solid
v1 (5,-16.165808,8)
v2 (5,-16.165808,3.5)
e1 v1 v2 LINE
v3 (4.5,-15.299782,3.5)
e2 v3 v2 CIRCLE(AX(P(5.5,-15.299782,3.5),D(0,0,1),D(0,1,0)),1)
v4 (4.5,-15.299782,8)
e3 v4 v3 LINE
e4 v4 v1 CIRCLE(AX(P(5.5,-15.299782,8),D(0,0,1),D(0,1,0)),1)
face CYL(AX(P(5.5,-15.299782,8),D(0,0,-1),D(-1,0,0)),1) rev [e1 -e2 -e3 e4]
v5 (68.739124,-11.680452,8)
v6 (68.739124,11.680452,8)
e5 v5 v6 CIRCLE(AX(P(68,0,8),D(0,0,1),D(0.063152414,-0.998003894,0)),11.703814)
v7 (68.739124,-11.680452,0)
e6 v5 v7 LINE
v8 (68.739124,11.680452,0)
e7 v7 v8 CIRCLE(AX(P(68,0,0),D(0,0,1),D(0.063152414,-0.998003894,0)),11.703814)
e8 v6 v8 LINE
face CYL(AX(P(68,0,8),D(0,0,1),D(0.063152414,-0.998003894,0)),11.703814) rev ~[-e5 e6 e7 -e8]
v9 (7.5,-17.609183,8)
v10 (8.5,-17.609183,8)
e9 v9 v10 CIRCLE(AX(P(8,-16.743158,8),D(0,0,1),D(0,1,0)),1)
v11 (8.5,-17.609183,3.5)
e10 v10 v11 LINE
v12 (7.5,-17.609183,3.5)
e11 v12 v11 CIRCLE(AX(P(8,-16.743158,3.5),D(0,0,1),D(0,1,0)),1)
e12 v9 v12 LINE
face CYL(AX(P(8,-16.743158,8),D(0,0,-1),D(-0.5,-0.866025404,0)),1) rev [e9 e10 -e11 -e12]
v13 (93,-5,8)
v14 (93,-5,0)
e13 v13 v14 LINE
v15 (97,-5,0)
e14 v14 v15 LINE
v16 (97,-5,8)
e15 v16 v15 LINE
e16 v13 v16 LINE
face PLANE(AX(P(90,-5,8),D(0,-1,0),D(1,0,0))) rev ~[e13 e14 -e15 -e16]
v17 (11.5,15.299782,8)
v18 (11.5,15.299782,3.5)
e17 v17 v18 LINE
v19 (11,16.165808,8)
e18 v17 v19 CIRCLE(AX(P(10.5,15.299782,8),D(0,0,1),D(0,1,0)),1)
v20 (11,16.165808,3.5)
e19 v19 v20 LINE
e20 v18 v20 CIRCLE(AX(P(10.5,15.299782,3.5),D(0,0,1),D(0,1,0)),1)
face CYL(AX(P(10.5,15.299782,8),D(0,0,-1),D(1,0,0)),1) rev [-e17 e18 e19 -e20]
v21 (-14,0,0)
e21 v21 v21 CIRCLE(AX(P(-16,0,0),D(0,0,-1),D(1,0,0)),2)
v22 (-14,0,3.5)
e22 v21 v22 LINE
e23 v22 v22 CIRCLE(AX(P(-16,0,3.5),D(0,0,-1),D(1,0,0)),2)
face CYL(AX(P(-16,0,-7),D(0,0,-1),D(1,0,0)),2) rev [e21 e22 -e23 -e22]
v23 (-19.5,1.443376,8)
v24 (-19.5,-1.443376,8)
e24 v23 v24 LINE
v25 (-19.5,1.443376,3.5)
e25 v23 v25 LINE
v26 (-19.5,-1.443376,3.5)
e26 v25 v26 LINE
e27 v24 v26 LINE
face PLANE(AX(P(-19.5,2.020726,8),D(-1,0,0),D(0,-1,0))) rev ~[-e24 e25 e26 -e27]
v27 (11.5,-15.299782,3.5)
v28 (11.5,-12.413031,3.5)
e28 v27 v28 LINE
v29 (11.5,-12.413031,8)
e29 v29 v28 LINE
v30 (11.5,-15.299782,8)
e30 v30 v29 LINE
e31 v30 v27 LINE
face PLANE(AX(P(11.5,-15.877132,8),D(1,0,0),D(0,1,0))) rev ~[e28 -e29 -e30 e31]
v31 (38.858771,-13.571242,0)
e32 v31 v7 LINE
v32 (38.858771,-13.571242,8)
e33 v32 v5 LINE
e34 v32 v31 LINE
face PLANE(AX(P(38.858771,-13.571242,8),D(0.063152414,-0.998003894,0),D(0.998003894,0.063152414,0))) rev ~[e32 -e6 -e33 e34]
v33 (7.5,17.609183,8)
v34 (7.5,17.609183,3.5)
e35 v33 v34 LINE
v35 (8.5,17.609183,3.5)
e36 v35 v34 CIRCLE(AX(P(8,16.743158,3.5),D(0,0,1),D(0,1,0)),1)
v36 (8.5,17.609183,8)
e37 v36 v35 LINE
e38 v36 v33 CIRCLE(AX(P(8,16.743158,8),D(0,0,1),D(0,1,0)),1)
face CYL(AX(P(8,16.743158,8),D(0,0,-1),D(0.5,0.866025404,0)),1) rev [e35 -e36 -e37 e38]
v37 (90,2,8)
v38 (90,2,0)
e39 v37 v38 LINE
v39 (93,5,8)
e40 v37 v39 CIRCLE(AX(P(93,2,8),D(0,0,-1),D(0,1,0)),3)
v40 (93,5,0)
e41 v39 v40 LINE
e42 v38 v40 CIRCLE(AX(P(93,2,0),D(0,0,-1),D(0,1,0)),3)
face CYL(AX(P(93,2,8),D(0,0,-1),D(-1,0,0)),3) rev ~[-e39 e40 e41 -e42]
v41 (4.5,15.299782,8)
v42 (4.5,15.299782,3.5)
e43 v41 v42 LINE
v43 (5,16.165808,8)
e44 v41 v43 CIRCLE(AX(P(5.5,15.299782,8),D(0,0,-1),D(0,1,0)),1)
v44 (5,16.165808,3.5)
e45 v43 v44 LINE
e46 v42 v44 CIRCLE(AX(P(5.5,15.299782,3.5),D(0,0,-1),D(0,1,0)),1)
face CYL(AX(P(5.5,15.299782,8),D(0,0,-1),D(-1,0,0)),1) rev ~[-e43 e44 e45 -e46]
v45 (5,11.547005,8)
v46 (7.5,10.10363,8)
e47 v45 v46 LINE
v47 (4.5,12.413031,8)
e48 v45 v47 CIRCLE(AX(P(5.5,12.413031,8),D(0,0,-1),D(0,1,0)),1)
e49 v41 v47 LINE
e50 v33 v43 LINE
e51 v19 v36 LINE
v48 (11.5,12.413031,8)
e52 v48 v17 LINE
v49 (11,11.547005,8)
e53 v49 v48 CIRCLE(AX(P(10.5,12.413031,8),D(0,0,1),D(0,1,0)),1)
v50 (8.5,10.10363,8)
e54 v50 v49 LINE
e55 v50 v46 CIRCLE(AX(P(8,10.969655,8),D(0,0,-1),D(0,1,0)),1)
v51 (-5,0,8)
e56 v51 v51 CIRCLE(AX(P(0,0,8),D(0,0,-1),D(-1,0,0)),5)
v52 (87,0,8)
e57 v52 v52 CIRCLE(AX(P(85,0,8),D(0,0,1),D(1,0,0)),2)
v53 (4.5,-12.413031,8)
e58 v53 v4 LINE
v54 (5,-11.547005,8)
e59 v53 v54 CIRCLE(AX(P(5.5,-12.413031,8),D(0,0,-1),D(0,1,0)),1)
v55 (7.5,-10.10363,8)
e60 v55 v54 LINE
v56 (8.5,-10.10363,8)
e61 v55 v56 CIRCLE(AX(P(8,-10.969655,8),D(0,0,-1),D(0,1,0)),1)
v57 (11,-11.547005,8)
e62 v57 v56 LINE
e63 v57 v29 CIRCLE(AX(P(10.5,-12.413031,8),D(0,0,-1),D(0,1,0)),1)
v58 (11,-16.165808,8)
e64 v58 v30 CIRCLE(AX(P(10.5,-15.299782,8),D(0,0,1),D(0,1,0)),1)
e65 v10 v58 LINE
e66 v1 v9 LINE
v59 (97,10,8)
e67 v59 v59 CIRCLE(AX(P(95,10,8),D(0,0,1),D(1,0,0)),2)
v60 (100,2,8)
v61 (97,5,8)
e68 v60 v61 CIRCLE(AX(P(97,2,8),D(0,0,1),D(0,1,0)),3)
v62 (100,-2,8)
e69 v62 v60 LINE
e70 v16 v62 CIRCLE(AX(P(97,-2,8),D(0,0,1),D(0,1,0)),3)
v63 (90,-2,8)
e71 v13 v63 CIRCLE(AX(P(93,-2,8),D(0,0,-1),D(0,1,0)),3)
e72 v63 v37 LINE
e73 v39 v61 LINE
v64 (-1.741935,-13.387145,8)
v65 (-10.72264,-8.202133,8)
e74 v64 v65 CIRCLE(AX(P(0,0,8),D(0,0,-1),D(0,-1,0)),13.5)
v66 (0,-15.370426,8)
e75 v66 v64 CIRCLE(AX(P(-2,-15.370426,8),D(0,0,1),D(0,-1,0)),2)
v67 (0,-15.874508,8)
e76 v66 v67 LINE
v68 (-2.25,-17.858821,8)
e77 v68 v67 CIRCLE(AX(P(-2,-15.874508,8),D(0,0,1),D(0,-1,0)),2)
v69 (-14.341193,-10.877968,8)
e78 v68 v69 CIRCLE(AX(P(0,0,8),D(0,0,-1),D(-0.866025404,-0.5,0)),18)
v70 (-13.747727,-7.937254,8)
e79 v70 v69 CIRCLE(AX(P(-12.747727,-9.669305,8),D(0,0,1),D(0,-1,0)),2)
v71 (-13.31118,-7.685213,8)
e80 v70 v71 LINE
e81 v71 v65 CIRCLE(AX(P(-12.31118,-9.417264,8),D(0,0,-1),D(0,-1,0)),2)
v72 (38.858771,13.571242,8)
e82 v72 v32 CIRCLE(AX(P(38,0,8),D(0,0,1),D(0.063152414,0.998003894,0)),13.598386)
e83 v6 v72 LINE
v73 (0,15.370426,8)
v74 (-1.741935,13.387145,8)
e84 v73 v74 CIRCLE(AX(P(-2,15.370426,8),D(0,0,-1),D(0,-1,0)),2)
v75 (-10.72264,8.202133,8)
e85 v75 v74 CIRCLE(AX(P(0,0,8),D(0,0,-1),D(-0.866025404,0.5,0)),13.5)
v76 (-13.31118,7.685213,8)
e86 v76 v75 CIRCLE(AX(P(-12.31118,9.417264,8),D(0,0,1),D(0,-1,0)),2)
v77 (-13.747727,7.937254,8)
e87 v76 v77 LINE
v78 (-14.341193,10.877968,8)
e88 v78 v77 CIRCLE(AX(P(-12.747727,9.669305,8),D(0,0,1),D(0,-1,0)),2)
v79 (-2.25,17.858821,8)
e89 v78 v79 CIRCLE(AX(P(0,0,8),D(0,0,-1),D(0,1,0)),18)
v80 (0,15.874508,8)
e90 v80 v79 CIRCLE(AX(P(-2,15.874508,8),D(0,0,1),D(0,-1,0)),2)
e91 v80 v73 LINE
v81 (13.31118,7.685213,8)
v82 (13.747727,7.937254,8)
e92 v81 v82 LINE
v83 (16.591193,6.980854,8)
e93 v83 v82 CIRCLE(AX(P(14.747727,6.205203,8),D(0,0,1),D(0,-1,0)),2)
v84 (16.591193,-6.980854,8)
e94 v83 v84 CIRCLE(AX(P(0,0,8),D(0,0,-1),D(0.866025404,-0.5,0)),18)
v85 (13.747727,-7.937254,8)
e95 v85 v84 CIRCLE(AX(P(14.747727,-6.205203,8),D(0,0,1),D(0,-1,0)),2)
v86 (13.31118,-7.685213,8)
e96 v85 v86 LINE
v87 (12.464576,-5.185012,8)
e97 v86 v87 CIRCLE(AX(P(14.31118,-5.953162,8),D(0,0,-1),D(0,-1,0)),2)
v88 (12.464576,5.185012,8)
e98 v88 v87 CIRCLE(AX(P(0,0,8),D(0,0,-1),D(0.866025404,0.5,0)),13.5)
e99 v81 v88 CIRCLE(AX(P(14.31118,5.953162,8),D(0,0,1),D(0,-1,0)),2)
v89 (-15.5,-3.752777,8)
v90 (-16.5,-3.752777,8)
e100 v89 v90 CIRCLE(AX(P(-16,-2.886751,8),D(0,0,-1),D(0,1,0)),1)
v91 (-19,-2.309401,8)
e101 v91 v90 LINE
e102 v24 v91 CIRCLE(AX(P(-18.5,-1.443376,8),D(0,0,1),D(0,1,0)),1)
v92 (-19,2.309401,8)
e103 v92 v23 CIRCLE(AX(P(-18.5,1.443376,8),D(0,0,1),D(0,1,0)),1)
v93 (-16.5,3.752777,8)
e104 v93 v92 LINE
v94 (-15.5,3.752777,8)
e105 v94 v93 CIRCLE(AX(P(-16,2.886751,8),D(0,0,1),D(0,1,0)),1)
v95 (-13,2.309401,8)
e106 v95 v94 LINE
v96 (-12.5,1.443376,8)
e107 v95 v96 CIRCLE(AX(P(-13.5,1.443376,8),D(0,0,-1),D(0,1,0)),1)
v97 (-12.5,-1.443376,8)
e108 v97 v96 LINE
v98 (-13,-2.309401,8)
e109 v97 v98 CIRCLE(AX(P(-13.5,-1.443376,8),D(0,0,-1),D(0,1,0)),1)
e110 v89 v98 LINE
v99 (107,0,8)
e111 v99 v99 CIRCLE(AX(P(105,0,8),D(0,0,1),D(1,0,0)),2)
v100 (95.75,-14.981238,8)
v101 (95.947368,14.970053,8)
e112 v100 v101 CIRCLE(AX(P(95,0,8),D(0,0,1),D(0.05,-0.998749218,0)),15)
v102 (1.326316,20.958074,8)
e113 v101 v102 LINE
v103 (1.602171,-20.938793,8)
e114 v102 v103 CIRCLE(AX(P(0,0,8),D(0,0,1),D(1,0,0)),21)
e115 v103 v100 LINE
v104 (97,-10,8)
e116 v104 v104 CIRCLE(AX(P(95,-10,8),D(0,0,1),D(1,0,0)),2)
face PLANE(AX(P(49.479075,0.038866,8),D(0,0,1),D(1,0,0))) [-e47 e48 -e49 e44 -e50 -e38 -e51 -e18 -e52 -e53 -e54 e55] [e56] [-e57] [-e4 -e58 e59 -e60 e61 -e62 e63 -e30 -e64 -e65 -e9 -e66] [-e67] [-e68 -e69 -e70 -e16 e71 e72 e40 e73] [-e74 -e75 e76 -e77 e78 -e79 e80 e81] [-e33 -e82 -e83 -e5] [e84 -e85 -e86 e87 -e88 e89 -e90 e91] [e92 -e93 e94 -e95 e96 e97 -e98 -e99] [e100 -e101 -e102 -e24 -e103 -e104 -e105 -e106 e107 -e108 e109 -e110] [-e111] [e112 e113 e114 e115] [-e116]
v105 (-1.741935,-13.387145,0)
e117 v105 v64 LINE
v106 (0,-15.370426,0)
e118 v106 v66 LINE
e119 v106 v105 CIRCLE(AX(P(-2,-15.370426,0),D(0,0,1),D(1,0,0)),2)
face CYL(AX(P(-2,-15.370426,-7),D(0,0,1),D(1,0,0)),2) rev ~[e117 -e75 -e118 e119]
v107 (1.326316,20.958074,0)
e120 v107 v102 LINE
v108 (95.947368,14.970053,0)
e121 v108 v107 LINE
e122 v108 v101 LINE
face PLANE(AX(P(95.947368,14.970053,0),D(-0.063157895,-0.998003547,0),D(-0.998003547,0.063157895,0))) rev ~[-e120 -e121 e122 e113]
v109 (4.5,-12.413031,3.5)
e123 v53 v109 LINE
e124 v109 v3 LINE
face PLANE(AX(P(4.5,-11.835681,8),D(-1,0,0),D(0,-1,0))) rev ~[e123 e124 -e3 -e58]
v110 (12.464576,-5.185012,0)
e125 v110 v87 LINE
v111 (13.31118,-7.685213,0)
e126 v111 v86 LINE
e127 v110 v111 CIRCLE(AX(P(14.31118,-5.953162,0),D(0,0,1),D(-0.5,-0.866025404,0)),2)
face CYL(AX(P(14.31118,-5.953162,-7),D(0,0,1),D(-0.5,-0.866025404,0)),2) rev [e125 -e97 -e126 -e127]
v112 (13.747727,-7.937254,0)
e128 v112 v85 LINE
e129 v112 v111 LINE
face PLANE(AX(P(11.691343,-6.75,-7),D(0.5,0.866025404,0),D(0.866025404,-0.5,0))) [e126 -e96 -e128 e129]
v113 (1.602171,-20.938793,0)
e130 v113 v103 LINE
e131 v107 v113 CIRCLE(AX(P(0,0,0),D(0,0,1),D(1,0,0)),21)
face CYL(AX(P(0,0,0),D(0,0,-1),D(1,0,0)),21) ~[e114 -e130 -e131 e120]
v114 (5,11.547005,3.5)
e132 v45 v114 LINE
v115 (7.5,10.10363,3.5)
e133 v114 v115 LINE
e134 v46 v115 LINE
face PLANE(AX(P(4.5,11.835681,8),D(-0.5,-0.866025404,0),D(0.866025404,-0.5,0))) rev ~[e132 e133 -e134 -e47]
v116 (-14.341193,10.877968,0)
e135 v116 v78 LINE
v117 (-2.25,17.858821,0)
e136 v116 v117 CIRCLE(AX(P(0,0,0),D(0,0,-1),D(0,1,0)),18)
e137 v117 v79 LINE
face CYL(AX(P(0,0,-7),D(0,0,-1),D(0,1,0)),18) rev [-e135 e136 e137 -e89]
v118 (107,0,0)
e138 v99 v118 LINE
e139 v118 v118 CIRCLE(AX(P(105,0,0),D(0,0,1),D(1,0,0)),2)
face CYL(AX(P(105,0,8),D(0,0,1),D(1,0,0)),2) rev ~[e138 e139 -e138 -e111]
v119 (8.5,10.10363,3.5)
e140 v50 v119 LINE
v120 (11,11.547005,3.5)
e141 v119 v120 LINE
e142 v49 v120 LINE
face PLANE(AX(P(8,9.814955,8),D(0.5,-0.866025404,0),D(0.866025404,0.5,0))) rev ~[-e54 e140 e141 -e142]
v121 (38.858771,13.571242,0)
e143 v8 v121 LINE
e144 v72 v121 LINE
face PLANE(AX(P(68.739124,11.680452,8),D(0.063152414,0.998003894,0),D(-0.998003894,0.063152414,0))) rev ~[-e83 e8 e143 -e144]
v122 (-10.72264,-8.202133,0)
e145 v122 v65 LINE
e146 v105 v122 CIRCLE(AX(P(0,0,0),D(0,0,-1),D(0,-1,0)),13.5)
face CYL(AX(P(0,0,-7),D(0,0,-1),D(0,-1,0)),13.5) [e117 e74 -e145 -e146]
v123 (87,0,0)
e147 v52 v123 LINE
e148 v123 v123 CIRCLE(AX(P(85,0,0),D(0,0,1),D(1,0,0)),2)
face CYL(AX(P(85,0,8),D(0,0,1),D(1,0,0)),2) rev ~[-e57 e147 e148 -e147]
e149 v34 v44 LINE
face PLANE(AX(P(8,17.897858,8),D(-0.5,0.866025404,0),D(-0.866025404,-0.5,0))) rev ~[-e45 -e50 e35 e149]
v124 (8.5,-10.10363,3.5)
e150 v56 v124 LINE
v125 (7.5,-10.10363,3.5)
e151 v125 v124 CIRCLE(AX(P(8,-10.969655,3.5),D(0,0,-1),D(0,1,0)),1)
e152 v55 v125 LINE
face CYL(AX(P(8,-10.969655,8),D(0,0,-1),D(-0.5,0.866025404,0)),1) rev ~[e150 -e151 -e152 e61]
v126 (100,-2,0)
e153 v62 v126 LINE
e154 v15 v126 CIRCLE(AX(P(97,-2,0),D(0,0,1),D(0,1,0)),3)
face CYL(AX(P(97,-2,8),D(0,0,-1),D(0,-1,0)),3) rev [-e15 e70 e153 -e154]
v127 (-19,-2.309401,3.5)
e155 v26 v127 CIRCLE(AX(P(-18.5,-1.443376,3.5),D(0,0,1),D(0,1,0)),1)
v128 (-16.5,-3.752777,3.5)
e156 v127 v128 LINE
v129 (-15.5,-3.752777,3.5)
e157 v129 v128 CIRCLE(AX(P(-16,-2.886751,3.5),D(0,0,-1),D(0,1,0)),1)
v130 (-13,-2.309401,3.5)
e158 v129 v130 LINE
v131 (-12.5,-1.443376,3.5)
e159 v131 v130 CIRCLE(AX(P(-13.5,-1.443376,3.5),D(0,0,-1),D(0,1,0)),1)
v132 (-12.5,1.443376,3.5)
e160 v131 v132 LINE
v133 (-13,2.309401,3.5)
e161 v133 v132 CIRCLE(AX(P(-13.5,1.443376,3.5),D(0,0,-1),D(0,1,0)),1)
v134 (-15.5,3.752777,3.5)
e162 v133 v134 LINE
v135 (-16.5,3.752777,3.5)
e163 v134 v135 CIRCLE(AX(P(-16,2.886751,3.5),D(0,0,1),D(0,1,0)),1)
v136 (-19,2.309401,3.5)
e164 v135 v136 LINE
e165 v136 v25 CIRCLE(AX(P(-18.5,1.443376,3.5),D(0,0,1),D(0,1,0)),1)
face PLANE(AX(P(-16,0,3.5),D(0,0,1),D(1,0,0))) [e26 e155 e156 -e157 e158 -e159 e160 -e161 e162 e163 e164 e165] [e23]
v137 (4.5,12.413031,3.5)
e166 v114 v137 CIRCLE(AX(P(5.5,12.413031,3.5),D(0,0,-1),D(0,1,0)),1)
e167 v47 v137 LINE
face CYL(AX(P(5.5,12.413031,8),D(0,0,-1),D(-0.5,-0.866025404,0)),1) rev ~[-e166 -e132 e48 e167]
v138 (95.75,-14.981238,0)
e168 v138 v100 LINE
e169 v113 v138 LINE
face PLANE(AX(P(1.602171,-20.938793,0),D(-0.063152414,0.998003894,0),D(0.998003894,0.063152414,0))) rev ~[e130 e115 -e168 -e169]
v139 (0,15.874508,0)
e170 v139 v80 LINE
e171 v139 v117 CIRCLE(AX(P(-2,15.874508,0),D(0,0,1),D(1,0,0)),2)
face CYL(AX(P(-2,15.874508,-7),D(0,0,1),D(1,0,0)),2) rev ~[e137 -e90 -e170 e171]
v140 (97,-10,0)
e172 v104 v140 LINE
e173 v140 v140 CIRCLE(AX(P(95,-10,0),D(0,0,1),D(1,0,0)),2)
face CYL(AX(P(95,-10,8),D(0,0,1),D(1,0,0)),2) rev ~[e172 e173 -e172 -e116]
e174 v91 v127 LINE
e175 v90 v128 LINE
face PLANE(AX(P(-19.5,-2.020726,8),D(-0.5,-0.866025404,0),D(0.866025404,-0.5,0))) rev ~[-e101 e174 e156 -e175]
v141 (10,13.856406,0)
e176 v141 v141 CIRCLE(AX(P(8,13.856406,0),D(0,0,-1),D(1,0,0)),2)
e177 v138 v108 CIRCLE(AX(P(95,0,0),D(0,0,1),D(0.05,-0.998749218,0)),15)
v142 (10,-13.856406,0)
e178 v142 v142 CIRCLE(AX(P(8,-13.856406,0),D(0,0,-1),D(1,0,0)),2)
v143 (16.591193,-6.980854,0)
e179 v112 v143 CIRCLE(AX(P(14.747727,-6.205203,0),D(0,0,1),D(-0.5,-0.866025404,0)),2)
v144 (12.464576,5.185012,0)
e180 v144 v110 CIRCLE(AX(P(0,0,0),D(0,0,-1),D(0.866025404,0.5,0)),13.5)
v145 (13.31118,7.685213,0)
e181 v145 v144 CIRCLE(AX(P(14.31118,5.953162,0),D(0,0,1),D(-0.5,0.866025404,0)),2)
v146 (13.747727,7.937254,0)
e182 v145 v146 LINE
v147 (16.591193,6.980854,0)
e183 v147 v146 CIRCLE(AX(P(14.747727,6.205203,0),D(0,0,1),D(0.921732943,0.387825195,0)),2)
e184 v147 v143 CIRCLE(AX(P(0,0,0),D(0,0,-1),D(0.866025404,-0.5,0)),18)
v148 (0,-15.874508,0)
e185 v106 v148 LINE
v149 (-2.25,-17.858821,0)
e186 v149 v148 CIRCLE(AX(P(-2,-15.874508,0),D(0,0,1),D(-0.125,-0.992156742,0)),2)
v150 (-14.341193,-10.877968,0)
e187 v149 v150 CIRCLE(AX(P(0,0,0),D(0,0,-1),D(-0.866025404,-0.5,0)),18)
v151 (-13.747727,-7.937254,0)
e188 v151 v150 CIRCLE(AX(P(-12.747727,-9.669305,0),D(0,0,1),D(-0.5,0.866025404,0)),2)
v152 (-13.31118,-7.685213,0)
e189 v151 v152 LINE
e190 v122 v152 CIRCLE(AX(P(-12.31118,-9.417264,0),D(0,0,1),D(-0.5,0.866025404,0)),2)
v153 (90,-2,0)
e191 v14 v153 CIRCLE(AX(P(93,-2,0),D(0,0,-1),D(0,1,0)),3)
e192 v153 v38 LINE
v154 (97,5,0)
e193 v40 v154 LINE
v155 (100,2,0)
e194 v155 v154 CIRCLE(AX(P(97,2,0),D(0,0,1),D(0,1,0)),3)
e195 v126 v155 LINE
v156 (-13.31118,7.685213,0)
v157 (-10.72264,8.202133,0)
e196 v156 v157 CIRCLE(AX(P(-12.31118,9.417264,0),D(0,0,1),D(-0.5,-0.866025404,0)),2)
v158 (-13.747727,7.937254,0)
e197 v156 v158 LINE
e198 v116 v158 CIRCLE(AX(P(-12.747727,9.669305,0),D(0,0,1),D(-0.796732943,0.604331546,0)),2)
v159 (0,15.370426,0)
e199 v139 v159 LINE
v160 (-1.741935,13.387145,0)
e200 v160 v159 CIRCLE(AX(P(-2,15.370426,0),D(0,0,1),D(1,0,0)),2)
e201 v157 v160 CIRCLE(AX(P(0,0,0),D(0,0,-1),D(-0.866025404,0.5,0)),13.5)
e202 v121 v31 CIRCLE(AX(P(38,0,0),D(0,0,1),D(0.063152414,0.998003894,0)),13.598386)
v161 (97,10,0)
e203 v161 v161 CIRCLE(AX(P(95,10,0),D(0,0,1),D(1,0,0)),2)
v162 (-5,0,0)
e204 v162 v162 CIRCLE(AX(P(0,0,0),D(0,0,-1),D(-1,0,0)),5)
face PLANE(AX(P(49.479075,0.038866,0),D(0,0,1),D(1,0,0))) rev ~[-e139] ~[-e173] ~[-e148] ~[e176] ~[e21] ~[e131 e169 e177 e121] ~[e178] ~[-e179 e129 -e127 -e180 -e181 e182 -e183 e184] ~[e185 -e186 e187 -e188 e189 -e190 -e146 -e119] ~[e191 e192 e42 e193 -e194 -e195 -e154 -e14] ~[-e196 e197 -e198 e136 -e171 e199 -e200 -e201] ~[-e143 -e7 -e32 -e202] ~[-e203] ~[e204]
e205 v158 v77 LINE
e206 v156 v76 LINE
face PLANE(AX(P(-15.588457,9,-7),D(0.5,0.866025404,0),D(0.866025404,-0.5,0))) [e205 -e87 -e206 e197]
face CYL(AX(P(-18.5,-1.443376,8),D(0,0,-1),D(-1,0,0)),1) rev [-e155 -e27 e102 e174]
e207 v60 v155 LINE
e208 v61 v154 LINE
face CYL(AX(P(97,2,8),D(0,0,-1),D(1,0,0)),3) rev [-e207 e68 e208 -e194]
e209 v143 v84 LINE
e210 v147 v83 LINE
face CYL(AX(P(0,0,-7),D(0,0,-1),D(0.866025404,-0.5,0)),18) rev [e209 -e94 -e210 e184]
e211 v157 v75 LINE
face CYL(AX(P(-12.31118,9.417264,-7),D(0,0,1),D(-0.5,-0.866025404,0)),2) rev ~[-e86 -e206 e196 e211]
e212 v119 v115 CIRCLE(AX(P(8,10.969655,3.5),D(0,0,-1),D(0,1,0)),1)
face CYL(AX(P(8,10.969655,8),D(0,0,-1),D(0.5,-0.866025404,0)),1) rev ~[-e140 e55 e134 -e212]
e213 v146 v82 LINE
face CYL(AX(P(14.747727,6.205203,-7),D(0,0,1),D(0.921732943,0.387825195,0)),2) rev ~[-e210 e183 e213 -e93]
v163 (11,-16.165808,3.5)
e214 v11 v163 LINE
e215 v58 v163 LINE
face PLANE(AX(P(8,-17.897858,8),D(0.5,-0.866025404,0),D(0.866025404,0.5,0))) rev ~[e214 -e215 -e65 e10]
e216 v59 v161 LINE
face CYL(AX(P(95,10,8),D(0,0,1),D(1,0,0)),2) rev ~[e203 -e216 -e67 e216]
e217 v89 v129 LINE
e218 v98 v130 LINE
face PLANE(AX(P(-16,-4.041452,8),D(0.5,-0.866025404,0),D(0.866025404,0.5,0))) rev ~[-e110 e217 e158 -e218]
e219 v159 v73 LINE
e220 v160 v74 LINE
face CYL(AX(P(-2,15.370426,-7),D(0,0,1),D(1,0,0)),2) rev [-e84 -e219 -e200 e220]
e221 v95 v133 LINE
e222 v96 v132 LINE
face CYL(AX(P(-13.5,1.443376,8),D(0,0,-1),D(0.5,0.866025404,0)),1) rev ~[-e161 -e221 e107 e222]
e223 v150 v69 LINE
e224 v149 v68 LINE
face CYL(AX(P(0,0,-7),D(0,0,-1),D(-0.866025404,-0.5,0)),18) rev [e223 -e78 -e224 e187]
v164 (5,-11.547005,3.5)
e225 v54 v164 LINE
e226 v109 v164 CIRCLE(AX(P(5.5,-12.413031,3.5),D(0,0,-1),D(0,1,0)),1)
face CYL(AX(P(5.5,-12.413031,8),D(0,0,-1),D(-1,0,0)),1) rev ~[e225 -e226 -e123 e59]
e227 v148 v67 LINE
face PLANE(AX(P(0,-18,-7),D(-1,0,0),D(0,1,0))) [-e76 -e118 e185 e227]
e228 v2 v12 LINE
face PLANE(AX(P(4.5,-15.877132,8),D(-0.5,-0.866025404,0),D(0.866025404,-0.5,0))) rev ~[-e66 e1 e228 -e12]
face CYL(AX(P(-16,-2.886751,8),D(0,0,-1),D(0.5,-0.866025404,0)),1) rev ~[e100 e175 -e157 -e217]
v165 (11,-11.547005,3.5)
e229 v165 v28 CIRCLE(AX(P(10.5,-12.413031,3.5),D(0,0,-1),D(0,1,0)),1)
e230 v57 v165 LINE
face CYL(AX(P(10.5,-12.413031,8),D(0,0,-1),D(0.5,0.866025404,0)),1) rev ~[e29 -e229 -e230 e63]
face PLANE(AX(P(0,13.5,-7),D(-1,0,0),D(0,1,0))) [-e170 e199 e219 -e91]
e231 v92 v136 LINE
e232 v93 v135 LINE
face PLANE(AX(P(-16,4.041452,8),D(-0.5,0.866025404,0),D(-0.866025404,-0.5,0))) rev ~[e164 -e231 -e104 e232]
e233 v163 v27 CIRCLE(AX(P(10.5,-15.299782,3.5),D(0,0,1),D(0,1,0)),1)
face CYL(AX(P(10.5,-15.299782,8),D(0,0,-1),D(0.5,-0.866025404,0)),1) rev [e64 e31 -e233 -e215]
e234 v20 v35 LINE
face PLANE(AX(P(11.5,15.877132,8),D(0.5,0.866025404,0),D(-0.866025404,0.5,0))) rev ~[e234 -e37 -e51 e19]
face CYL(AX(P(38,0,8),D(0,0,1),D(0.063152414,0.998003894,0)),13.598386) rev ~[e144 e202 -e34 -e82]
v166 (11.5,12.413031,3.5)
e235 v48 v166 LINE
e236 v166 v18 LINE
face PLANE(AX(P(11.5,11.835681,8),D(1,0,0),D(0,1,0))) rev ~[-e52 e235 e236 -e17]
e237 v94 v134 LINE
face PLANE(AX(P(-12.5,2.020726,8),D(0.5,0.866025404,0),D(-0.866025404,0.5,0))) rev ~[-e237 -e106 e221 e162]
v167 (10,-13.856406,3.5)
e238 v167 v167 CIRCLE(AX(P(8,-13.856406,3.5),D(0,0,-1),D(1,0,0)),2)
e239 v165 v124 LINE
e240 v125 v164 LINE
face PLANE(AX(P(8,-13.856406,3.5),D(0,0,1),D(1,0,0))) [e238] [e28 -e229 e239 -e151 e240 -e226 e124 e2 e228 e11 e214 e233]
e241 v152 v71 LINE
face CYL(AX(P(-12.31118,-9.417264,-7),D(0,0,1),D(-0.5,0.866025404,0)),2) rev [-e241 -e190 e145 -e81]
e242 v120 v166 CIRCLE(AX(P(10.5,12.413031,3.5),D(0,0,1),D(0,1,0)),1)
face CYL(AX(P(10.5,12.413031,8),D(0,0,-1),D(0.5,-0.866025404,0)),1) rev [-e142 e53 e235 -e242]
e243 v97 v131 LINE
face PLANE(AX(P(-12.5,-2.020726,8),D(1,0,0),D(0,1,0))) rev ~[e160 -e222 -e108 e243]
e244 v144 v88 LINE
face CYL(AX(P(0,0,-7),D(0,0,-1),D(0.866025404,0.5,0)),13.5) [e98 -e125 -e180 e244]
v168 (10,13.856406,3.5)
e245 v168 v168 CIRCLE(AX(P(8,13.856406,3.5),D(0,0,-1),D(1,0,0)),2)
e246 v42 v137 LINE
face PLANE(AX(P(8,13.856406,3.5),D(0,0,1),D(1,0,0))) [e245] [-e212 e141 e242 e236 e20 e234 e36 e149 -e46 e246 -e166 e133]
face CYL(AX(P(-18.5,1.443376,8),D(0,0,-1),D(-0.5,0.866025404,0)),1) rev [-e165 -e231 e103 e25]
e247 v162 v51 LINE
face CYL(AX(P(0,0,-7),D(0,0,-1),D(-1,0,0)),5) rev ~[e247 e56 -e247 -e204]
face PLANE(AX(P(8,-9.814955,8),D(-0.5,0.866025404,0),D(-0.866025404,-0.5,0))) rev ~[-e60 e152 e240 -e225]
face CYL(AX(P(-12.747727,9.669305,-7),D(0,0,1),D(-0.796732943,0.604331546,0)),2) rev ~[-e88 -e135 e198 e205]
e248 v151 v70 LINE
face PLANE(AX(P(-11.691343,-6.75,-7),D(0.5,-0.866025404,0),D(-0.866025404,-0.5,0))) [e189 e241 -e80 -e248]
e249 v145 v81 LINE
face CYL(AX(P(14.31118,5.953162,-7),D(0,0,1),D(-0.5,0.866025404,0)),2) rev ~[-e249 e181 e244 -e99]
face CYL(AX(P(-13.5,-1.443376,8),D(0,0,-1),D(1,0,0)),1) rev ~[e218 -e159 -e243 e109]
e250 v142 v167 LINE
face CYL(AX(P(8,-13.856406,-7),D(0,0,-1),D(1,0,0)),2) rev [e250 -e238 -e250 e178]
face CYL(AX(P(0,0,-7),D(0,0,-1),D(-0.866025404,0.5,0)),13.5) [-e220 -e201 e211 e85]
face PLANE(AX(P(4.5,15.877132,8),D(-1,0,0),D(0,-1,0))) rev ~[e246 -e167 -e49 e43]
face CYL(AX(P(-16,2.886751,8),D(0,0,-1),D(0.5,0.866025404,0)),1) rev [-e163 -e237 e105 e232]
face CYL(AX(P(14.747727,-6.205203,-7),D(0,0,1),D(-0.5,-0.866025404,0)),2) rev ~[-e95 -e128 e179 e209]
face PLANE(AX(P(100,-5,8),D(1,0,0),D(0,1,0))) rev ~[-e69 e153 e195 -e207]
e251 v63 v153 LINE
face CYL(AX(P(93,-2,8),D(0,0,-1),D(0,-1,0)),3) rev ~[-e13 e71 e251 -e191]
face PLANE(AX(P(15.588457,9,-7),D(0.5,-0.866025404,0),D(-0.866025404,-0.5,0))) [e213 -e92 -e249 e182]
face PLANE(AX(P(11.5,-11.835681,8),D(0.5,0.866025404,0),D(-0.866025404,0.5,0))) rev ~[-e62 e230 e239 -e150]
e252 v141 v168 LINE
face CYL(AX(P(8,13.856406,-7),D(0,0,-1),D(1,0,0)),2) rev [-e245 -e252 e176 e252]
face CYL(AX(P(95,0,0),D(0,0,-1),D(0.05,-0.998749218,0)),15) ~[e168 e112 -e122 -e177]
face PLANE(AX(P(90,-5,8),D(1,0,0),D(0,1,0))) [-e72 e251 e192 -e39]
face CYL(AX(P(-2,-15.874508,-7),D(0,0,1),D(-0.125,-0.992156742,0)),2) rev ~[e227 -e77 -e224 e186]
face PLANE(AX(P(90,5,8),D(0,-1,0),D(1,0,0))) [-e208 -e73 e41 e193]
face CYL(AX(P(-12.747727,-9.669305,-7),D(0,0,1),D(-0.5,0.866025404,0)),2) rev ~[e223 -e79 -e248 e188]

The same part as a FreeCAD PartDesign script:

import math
import FreeCAD as App
import Part
import Sketcher

V = App.Vector
Q = App.Units.Quantity


def edges_at(feature, points):
    """Names of the edges that pass closest to the given points."""
    edges = feature.Shape.Edges
    near = lambda p: min(range(len(edges)), key=lambda i: edges[i].distToShape(Part.Vertex(*p))[0])
    return sorted({f"Edge{near(p) + 1}" for p in points})

doc = App.newDocument("Part")
body = doc.addObject("PartDesign::Body", "Body")

# Sketch on XY plane
sketch1 = doc.addObject("Sketcher::SketchObject", "Sketch")
body.addObject(sketch1)
sketch1.AttachmentSupport = (doc.XY_Plane, [""])
sketch1.MapMode = "FlatFace"
sketch1.addGeometry(Part.Circle(V(0, 0, 0), V(0, 0, 1), 21), False)
sketch1.addGeometry(Part.Circle(V(8, 13.856406, 0), V(0, 0, 1), 2), False)
sketch1.addGeometry(Part.Circle(V(8, -13.856406, 0), V(0, 0, 1), 2), False)
sketch1.addGeometry(Part.Circle(V(-16, 0, 0), V(0, 0, 1), 2), False)
sketch1.addConstraint(Sketcher.Constraint("Coincident", 0, 3, -1, 1))
sketch1.addConstraint(Sketcher.Constraint("Equal", 1, 2))
sketch1.addConstraint(Sketcher.Constraint("Equal", 2, 3))
sketch1.addConstraint(Sketcher.Constraint("Symmetric", 1, 3, 2, 3, -1))
sketch1.addConstraint(Sketcher.Constraint("PointOnObject", 3, 3, -1))
sketch1.addConstraint(Sketcher.Constraint("Diameter", 0, Q("42 mm")))
sketch1.addConstraint(Sketcher.Constraint("Diameter", 1, Q("4 mm")))
sketch1.addConstraint(Sketcher.Constraint("DistanceX", -1, 1, 1, 3, Q("8 mm")))
sketch1.addConstraint(Sketcher.Constraint("DistanceX", 3, 3, -1, 1, Q("16 mm")))
sketch1.addConstraint(Sketcher.Constraint("DistanceY", -1, 1, 1, 3, Q("13.856406 mm")))
pad1 = doc.addObject("PartDesign::Pad", "Pad")
body.addObject(pad1)
pad1.Profile = sketch1
pad1.Length = 8

# Sketch on XY plane
sketch2 = doc.addObject("Sketcher::SketchObject", "Sketch001")
body.addObject(sketch2)
sketch2.AttachmentSupport = (doc.XY_Plane, [""])
sketch2.MapMode = "FlatFace"
sketch2.AttachmentOffset = App.Placement(V(0, 0, -7), App.Rotation())
sketch2.addGeometry(Part.Circle(V(0, 0, 0), V(0, 0, 1), 20), False)
sketch2.addGeometry(Part.Circle(V(8, -13.856406, 0), V(0, 0, 1), 2), False)
sketch2.addGeometry(Part.Circle(V(-16, 0, 0), V(0, 0, 1), 2), False)
sketch2.addGeometry(Part.Circle(V(8, 13.856406, 0), V(0, 0, 1), 2), False)
sketch2.addConstraint(Sketcher.Constraint("Coincident", 0, 3, -1, 1))
sketch2.addConstraint(Sketcher.Constraint("Equal", 1, 2))
sketch2.addConstraint(Sketcher.Constraint("Equal", 2, 3))
sketch2.addConstraint(Sketcher.Constraint("Symmetric", 1, 3, 3, 3, -1))
sketch2.addConstraint(Sketcher.Constraint("PointOnObject", 2, 3, -1))
sketch2.addConstraint(Sketcher.Constraint("Diameter", 0, Q("40 mm")))
sketch2.addConstraint(Sketcher.Constraint("Diameter", 1, Q("4 mm")))
sketch2.addConstraint(Sketcher.Constraint("DistanceX", -1, 1, 1, 3, Q("8 mm")))
sketch2.addConstraint(Sketcher.Constraint("DistanceX", 2, 3, -1, 1, Q("16 mm")))
sketch2.addConstraint(Sketcher.Constraint("DistanceY", 1, 3, -1, 1, Q("13.856406 mm")))
pad2 = doc.addObject("PartDesign::Pad", "Pad001")
body.addObject(pad2)
pad2.Profile = sketch2
pad2.Length = 7

# Sketch on XY plane
sketch3 = doc.addObject("Sketcher::SketchObject", "Sketch002")
body.addObject(sketch3)
sketch3.AttachmentSupport = (doc.XY_Plane, [""])
sketch3.MapMode = "FlatFace"
sketch3.AttachmentOffset = App.Placement(V(0, 0, -7), App.Rotation())
sketch3.addGeometry(Part.Circle(V(0, 0, 0), V(0, 0, 1), 5), False)
sketch3.addConstraint(Sketcher.Constraint("Coincident", 0, 3, -1, 1))
sketch3.addConstraint(Sketcher.Constraint("Diameter", 0, Q("10 mm")))
pocket1 = doc.addObject("PartDesign::Pocket", "Pocket")
body.addObject(pocket1)
pocket1.Profile = sketch3
pocket1.Length = 25
pocket1.Reversed = True

# Sketch on XY plane
sketch4 = doc.addObject("Sketcher::SketchObject", "Sketch003")
body.addObject(sketch4)
sketch4.AttachmentSupport = (doc.XY_Plane, [""])
sketch4.MapMode = "FlatFace"
sketch4.AttachmentOffset = App.Placement(V(0, 0, -7), App.Rotation())
sketch4.addGeometry(Part.LineSegment(V(0, 18, 0), V(0, 13.5, 0)), False)
sketch4.addGeometry(Part.ArcOfCircle(Part.Circle(V(0, 0, 0), V(0, 0, 1), 13.5), math.radians(90), math.radians(150)), False)
sketch4.addGeometry(Part.LineSegment(V(-11.691343, 6.75, 0), V(-15.588457, 9, 0)), False)
sketch4.addGeometry(Part.ArcOfCircle(Part.Circle(V(0, 0, 0), V(0, 0, 1), 18), math.radians(90), math.radians(150)), False)
sketch4.addGeometry(Part.LineSegment(V(-15.588457, -9, 0), V(-11.691343, -6.75, 0)), False)
sketch4.addGeometry(Part.ArcOfCircle(Part.Circle(V(0, 0, 0), V(0, 0, 1), 13.5), math.radians(-150), math.radians(-90)), False)
sketch4.addGeometry(Part.LineSegment(V(0, -13.5, 0), V(0, -18, 0)), False)
sketch4.addGeometry(Part.ArcOfCircle(Part.Circle(V(0, 0, 0), V(0, 0, 1), 18), math.radians(-150), math.radians(-90)), False)
sketch4.addGeometry(Part.LineSegment(V(15.588457, -9, 0), V(11.691343, -6.75, 0)), False)
sketch4.addGeometry(Part.ArcOfCircle(Part.Circle(V(0, 0, 0), V(0, 0, 1), 13.5), math.radians(-30), math.radians(30)), False)
sketch4.addGeometry(Part.LineSegment(V(11.691343, 6.75, 0), V(15.588457, 9, 0)), False)
sketch4.addGeometry(Part.ArcOfCircle(Part.Circle(V(0, 0, 0), V(0, 0, 1), 18), math.radians(-30), math.radians(30)), False)
sketch4.addConstraint(Sketcher.Constraint("Coincident", 0, 2, 1, 1))
sketch4.addConstraint(Sketcher.Constraint("Coincident", 1, 2, 2, 1))
sketch4.addConstraint(Sketcher.Constraint("Coincident", 2, 2, 3, 2))
sketch4.addConstraint(Sketcher.Constraint("Coincident", 3, 1, 0, 1))
sketch4.addConstraint(Sketcher.Constraint("Coincident", 4, 2, 5, 1))
sketch4.addConstraint(Sketcher.Constraint("Coincident", 5, 2, 6, 1))
sketch4.addConstraint(Sketcher.Constraint("Coincident", 6, 2, 7, 2))
sketch4.addConstraint(Sketcher.Constraint("Coincident", 7, 1, 4, 1))
sketch4.addConstraint(Sketcher.Constraint("Coincident", 8, 2, 9, 1))
sketch4.addConstraint(Sketcher.Constraint("Coincident", 9, 2, 10, 1))
sketch4.addConstraint(Sketcher.Constraint("Coincident", 10, 2, 11, 2))
sketch4.addConstraint(Sketcher.Constraint("Coincident", 11, 1, 8, 1))
sketch4.addConstraint(Sketcher.Constraint("Vertical", 0))
sketch4.addConstraint(Sketcher.Constraint("Vertical", 6))
sketch4.addConstraint(Sketcher.Constraint("Coincident", 1, 3, -1, 1))
sketch4.addConstraint(Sketcher.Constraint("Coincident", 3, 3, -1, 1))
sketch4.addConstraint(Sketcher.Constraint("Coincident", 5, 3, -1, 1))
sketch4.addConstraint(Sketcher.Constraint("Coincident", 7, 3, -1, 1))
sketch4.addConstraint(Sketcher.Constraint("Coincident", 9, 3, -1, 1))
sketch4.addConstraint(Sketcher.Constraint("Coincident", 11, 3, -1, 1))
sketch4.addConstraint(Sketcher.Constraint("Equal", 1, 5))
sketch4.addConstraint(Sketcher.Constraint("Equal", 3, 7))
sketch4.addConstraint(Sketcher.Constraint("Equal", 5, 9))
sketch4.addConstraint(Sketcher.Constraint("Equal", 7, 11))
sketch4.addConstraint(Sketcher.Constraint("PointOnObject", 0, 2, -2))
sketch4.addConstraint(Sketcher.Constraint("PointOnObject", 5, 2, -2))
sketch4.addConstraint(Sketcher.Constraint("Parallel", 2, 8))
sketch4.addConstraint(Sketcher.Constraint("Parallel", 4, 10))
sketch4.addConstraint(Sketcher.Constraint("Horizontal", 4, 2, 8, 2))
sketch4.addConstraint(Sketcher.Constraint("Horizontal", 1, 2, 9, 2))
sketch4.addConstraint(Sketcher.Constraint("Horizontal", 2, 2, 10, 2))
sketch4.addConstraint(Sketcher.Constraint("Vertical", 1, 2, 4, 2))
sketch4.addConstraint(Sketcher.Constraint("Radius", 3, Q("18 mm")))
sketch4.addConstraint(Sketcher.Constraint("Radius", 1, Q("13.5 mm")))
sketch4.addConstraint(Sketcher.Constraint("Angle", 2, Q("150 deg")))
sketch4.addConstraint(Sketcher.Constraint("DistanceY", -1, 1, 2, 2, Q("9 mm")))
pocket2 = doc.addObject("PartDesign::Pocket", "Pocket001")
body.addObject(pocket2)
pocket2.Profile = sketch4
pocket2.Length = 25
pocket2.Reversed = True
doc.recompute()

fillet = doc.addObject("PartDesign::Fillet", "Fillet")
body.addObject(fillet)
fillet.Base = (pocket2, edges_at(pocket2, [
    (15.588, -9, 0.5),
    (15.588, 9, 0.5),
    (11.691, 6.75, 0.5),
    (11.691, -6.75, 0.5),
    (-15.588, -9, 0.5),
    (0, -18, 0.5),
    (0, -13.5, 0.5),
    (-11.691, -6.75, 0.5),
    (0, 18, 0.5),
    (-15.588, 9, 0.5),
    (-11.691, 6.75, 0.5),
    (0, 13.5, 0.5),
]))
fillet.Radius = 2

# Sketch on XY plane
sketch5 = doc.addObject("Sketcher::SketchObject", "Sketch004")
body.addObject(sketch5)
sketch5.AttachmentSupport = (doc.XY_Plane, [""])
sketch5.MapMode = "FlatFace"
sketch5.addGeometry(Part.LineSegment(V(95.947368, 14.970053, 0), V(1.326316, 20.958074, 0)), False)
sketch5.addGeometry(Part.ArcOfCircle(Part.Circle(V(0, 0, 0), V(0, 0, 1), 21), math.radians(-85.624431), math.radians(86.378909)), False)
sketch5.addGeometry(Part.LineSegment(V(1.602171, -20.938793, 0), V(95.75, -14.981238, 0)), False)
sketch5.addGeometry(Part.ArcOfCircle(Part.Circle(V(95, 0, 0), V(0, 0, 1), 15), math.radians(-87.134016), math.radians(86.378909)), False)
sketch5.addConstraint(Sketcher.Constraint("Tangent", 0, 2, 1, 2))
sketch5.addConstraint(Sketcher.Constraint("Coincident", 1, 1, 2, 1))
sketch5.addConstraint(Sketcher.Constraint("Coincident", 2, 2, 3, 1))
sketch5.addConstraint(Sketcher.Constraint("Tangent", 3, 2, 0, 1))
sketch5.addConstraint(Sketcher.Constraint("Coincident", 1, 3, -1, 1))
sketch5.addConstraint(Sketcher.Constraint("PointOnObject", 3, 3, -1))
sketch5.addConstraint(Sketcher.Constraint("Radius", 1, Q("21 mm")))
sketch5.addConstraint(Sketcher.Constraint("Radius", 3, Q("15 mm")))
sketch5.addConstraint(Sketcher.Constraint("DistanceX", -1, 1, 3, 3, Q("95 mm")))
sketch5.addConstraint(Sketcher.Constraint("DistanceX", -1, 1, 2, 2, Q("95.75 mm")))
sketch5.addConstraint(Sketcher.Constraint("DistanceX", -1, 1, 1, 1, Q("1.602171 mm")))
pad3 = doc.addObject("PartDesign::Pad", "Pad002")
body.addObject(pad3)
pad3.Profile = sketch5
pad3.Length = 8

# Sketch on XY plane
sketch6 = doc.addObject("Sketcher::SketchObject", "Sketch005")
body.addObject(sketch6)
sketch6.AttachmentSupport = (doc.XY_Plane, [""])
sketch6.MapMode = "FlatFace"
sketch6.AttachmentOffset = App.Placement(V(0, 0, 8), App.Rotation())
sketch6.addGeometry(Part.Circle(V(95, 10, 0), V(0, 0, 1), 2), False)
sketch6.addGeometry(Part.Circle(V(105, 0, 0), V(0, 0, 1), 2), False)
sketch6.addGeometry(Part.Circle(V(95, -10, 0), V(0, 0, 1), 2), False)
sketch6.addGeometry(Part.Circle(V(85, 0, 0), V(0, 0, 1), 2), False)
sketch6.addConstraint(Sketcher.Constraint("Equal", 0, 1))
sketch6.addConstraint(Sketcher.Constraint("Equal", 1, 2))
sketch6.addConstraint(Sketcher.Constraint("Equal", 2, 3))
sketch6.addConstraint(Sketcher.Constraint("Symmetric", 0, 3, 2, 3, -1))
sketch6.addConstraint(Sketcher.Constraint("PointOnObject", 1, 3, -1))
sketch6.addConstraint(Sketcher.Constraint("PointOnObject", 3, 3, -1))
sketch6.addConstraint(Sketcher.Constraint("Diameter", 0, Q("4 mm")))
sketch6.addConstraint(Sketcher.Constraint("DistanceX", -1, 1, 0, 3, Q("95 mm")))
sketch6.addConstraint(Sketcher.Constraint("DistanceY", -1, 1, 0, 3, Q("10 mm")))
sketch6.addConstraint(Sketcher.Constraint("DistanceX", -1, 1, 1, 3, Q("105 mm")))
sketch6.addConstraint(Sketcher.Constraint("DistanceX", -1, 1, 3, 3, Q("85 mm")))
pocket3 = doc.addObject("PartDesign::Pocket", "Pocket002")
body.addObject(pocket3)
pocket3.Profile = sketch6
pocket3.Length = 8

# Sketch on XY plane
sketch7 = doc.addObject("Sketcher::SketchObject", "Sketch006")
body.addObject(sketch7)
sketch7.AttachmentSupport = (doc.XY_Plane, [""])
sketch7.MapMode = "FlatFace"
sketch7.AttachmentOffset = App.Placement(V(0, 0, 8), App.Rotation())
sketch7.addGeometry(Part.LineSegment(V(90, 5, 0), V(90, -5, 0)), False)
sketch7.addGeometry(Part.LineSegment(V(90, -5, 0), V(100, -5, 0)), False)
sketch7.addGeometry(Part.LineSegment(V(100, -5, 0), V(100, 5, 0)), False)
sketch7.addGeometry(Part.LineSegment(V(100, 5, 0), V(90, 5, 0)), False)
sketch7.addConstraint(Sketcher.Constraint("Coincident", 0, 2, 1, 1))
sketch7.addConstraint(Sketcher.Constraint("Coincident", 1, 2, 2, 1))
sketch7.addConstraint(Sketcher.Constraint("Coincident", 2, 2, 3, 1))
sketch7.addConstraint(Sketcher.Constraint("Coincident", 3, 2, 0, 1))
sketch7.addConstraint(Sketcher.Constraint("Vertical", 0))
sketch7.addConstraint(Sketcher.Constraint("Horizontal", 1))
sketch7.addConstraint(Sketcher.Constraint("Vertical", 2))
sketch7.addConstraint(Sketcher.Constraint("Horizontal", 3))
sketch7.addConstraint(Sketcher.Constraint("Equal", 3, 0))
sketch7.addConstraint(Sketcher.Constraint("DistanceX", 1, 1, 1, 2, Q("10 mm")))
sketch7.addConstraint(Sketcher.Constraint("DistanceX", -1, 1, 0, 2, Q("90 mm")))
sketch7.addConstraint(Sketcher.Constraint("DistanceY", 0, 2, -1, 1, Q("5 mm")))
pocket4 = doc.addObject("PartDesign::Pocket", "Pocket003")
body.addObject(pocket4)
pocket4.Profile = sketch7
pocket4.Length = 20

# Sketch on XY plane
sketch8 = doc.addObject("Sketcher::SketchObject", "Sketch007")
body.addObject(sketch8)
sketch8.AttachmentSupport = (doc.XY_Plane, [""])
sketch8.MapMode = "FlatFace"
sketch8.AttachmentOffset = App.Placement(V(0, 0, -26), App.Rotation())
sketch8.addGeometry(Part.Circle(V(0, 0, 0), V(0, 0, 1), 20), False)
sketch8.addConstraint(Sketcher.Constraint("Coincident", 0, 3, -1, 1))
sketch8.addConstraint(Sketcher.Constraint("Diameter", 0, Q("40 mm")))
pocket5 = doc.addObject("PartDesign::Pocket", "Pocket004")
body.addObject(pocket5)
pocket5.Profile = sketch8
pocket5.Length = 26
pocket5.Reversed = True

# Sketch on XY plane
sketch9 = doc.addObject("Sketcher::SketchObject", "Sketch008")
body.addObject(sketch9)
sketch9.AttachmentSupport = (doc.XY_Plane, [""])
sketch9.MapMode = "FlatFace"
sketch9.AttachmentOffset = App.Placement(V(0, 0, 8), App.Rotation())
sketch9.addGeometry(Part.LineSegment(V(4.5, -11.835681, 0), V(4.5, -15.877132, 0)), False)
sketch9.addGeometry(Part.LineSegment(V(4.5, -15.877132, 0), V(8, -17.897858, 0)), False)
sketch9.addGeometry(Part.LineSegment(V(8, -17.897858, 0), V(11.5, -15.877132, 0)), False)
sketch9.addGeometry(Part.LineSegment(V(11.5, -15.877132, 0), V(11.5, -11.835681, 0)), False)
sketch9.addGeometry(Part.LineSegment(V(11.5, -11.835681, 0), V(8, -9.814955, 0)), False)
sketch9.addGeometry(Part.LineSegment(V(8, -9.814955, 0), V(4.5, -11.835681, 0)), False)
sketch9.addGeometry(Part.LineSegment(V(8, 9.814955, 0), V(11.5, 11.835681, 0)), False)
sketch9.addGeometry(Part.LineSegment(V(11.5, 11.835681, 0), V(11.5, 15.877132, 0)), False)
sketch9.addGeometry(Part.LineSegment(V(11.5, 15.877132, 0), V(8, 17.897858, 0)), False)
sketch9.addGeometry(Part.LineSegment(V(8, 17.897858, 0), V(4.5, 15.877132, 0)), False)
sketch9.addGeometry(Part.LineSegment(V(4.5, 15.877132, 0), V(4.5, 11.835681, 0)), False)
sketch9.addGeometry(Part.LineSegment(V(4.5, 11.835681, 0), V(8, 9.814955, 0)), False)
sketch9.addGeometry(Part.LineSegment(V(-12.5, 2.020726, 0), V(-16, 4.041452, 0)), False)
sketch9.addGeometry(Part.LineSegment(V(-16, 4.041452, 0), V(-19.5, 2.020726, 0)), False)
sketch9.addGeometry(Part.LineSegment(V(-19.5, 2.020726, 0), V(-19.5, -2.020726, 0)), False)
sketch9.addGeometry(Part.LineSegment(V(-19.5, -2.020726, 0), V(-16, -4.041452, 0)), False)
sketch9.addGeometry(Part.LineSegment(V(-16, -4.041452, 0), V(-12.5, -2.020726, 0)), False)
sketch9.addGeometry(Part.LineSegment(V(-12.5, -2.020726, 0), V(-12.5, 2.020726, 0)), False)
sketch9.addConstraint(Sketcher.Constraint("Coincident", 0, 2, 1, 1))
sketch9.addConstraint(Sketcher.Constraint("Coincident", 1, 2, 2, 1))
sketch9.addConstraint(Sketcher.Constraint("Coincident", 2, 2, 3, 1))
sketch9.addConstraint(Sketcher.Constraint("Coincident", 3, 2, 4, 1))
sketch9.addConstraint(Sketcher.Constraint("Coincident", 4, 2, 5, 1))
sketch9.addConstraint(Sketcher.Constraint("Coincident", 5, 2, 0, 1))
sketch9.addConstraint(Sketcher.Constraint("Coincident", 6, 2, 7, 1))
sketch9.addConstraint(Sketcher.Constraint("Coincident", 7, 2, 8, 1))
sketch9.addConstraint(Sketcher.Constraint("Coincident", 8, 2, 9, 1))
sketch9.addConstraint(Sketcher.Constraint("Coincident", 9, 2, 10, 1))
sketch9.addConstraint(Sketcher.Constraint("Coincident", 10, 2, 11, 1))
sketch9.addConstraint(Sketcher.Constraint("Coincident", 11, 2, 6, 1))
sketch9.addConstraint(Sketcher.Constraint("Coincident", 12, 2, 13, 1))
sketch9.addConstraint(Sketcher.Constraint("Coincident", 13, 2, 14, 1))
sketch9.addConstraint(Sketcher.Constraint("Coincident", 14, 2, 15, 1))
sketch9.addConstraint(Sketcher.Constraint("Coincident", 15, 2, 16, 1))
sketch9.addConstraint(Sketcher.Constraint("Coincident", 16, 2, 17, 1))
sketch9.addConstraint(Sketcher.Constraint("Coincident", 17, 2, 12, 1))
sketch9.addConstraint(Sketcher.Constraint("Vertical", 0))
sketch9.addConstraint(Sketcher.Constraint("Vertical", 3))
sketch9.addConstraint(Sketcher.Constraint("Vertical", 7))
sketch9.addConstraint(Sketcher.Constraint("Vertical", 10))
sketch9.addConstraint(Sketcher.Constraint("Vertical", 14))
sketch9.addConstraint(Sketcher.Constraint("Vertical", 17))
sketch9.addConstraint(Sketcher.Constraint("Symmetric", 3, 2, 6, 2, -1))
sketch9.addConstraint(Sketcher.Constraint("Symmetric", 1, 2, 8, 2, -1))
sketch9.addConstraint(Sketcher.Constraint("Symmetric", 0, 2, 9, 2, -1))
sketch9.addConstraint(Sketcher.Constraint("Symmetric", 4, 2, 11, 2, -1))
sketch9.addConstraint(Sketcher.Constraint("Symmetric", 12, 2, 15, 2, -1))
sketch9.addConstraint(Sketcher.Constraint("Parallel", 1, 4))
sketch9.addConstraint(Sketcher.Constraint("Parallel", 2, 5))
sketch9.addConstraint(Sketcher.Constraint("Parallel", 5, 6))
sketch9.addConstraint(Sketcher.Constraint("Parallel", 4, 8))
sketch9.addConstraint(Sketcher.Constraint("Parallel", 8, 11))
sketch9.addConstraint(Sketcher.Constraint("Parallel", 11, 12))
sketch9.addConstraint(Sketcher.Constraint("Parallel", 9, 13))
sketch9.addConstraint(Sketcher.Constraint("Parallel", 12, 15))
sketch9.addConstraint(Sketcher.Constraint("Parallel", 13, 16))
sketch9.addConstraint(Sketcher.Constraint("Horizontal", 0, 2, 2, 2))
sketch9.addConstraint(Sketcher.Constraint("Horizontal", 3, 2, 5, 2))
sketch9.addConstraint(Sketcher.Constraint("Horizontal", 14, 2, 16, 2))
sketch9.addConstraint(Sketcher.Constraint("Equal", 10, 14))
sketch9.addConstraint(Sketcher.Constraint("Equal", 11, 12))
sketch9.addConstraint(Sketcher.Constraint("Angle", 1, Q("-30 deg")))
sketch9.addConstraint(Sketcher.Constraint("DistanceX", -1, 1, 1, 2, Q("8 mm")))
sketch9.addConstraint(Sketcher.Constraint("DistanceX", 12, 2, -1, 1, Q("16 mm")))
sketch9.addConstraint(Sketcher.Constraint("DistanceX", 0, 2, 2, 2, Q("7 mm")))
sketch9.addConstraint(Sketcher.Constraint("DistanceY", 0, 2, 0, 1, Q("4.041452 mm")))
sketch9.addConstraint(Sketcher.Constraint("DistanceY", 1, 2, -1, 1, Q("17.897858 mm")))
pocket6 = doc.addObject("PartDesign::Pocket", "Pocket005")
body.addObject(pocket6)
pocket6.Profile = sketch9
pocket6.Length = 4.5

# Sketch on XY plane
sketch10 = doc.addObject("Sketcher::SketchObject", "Sketch009")
body.addObject(sketch10)
sketch10.AttachmentSupport = (doc.XY_Plane, [""])
sketch10.MapMode = "FlatFace"
sketch10.AttachmentOffset = App.Placement(V(0, 0, 8), App.Rotation())
sketch10.addGeometry(Part.LineSegment(V(38.858771, -13.571242, 0), V(68.739124, -11.680452, 0)), False)
sketch10.addGeometry(Part.ArcOfCircle(Part.Circle(V(68, 0, 0), V(0, 0, 1), 11.703814), math.radians(-86.379224), math.radians(86.379224)), False)
sketch10.addGeometry(Part.LineSegment(V(68.739124, 11.680452, 0), V(38.858771, 13.571242, 0)), False)
sketch10.addGeometry(Part.ArcOfCircle(Part.Circle(V(38, 0, 0), V(0, 0, 1), 13.598386), math.radians(86.379224), math.radians(273.620776)), False)
sketch10.addConstraint(Sketcher.Constraint("Tangent", 0, 2, 1, 1))
sketch10.addConstraint(Sketcher.Constraint("Tangent", 1, 2, 2, 1))
sketch10.addConstraint(Sketcher.Constraint("Tangent", 2, 2, 3, 1))
sketch10.addConstraint(Sketcher.Constraint("Tangent", 3, 2, 0, 1))
sketch10.addConstraint(Sketcher.Constraint("Symmetric", 0, 2, 1, 2, -1))
sketch10.addConstraint(Sketcher.Constraint("DistanceX", -1, 1, 1, 3, Q("68 mm")))
sketch10.addConstraint(Sketcher.Constraint("DistanceX", -1, 1, 3, 3, Q("38 mm")))
sketch10.addConstraint(Sketcher.Constraint("Radius", 1, Q("11.703814 mm")))
sketch10.addConstraint(Sketcher.Constraint("Radius", 3, Q("13.598386 mm")))
pocket7 = doc.addObject("PartDesign::Pocket", "Pocket006")
body.addObject(pocket7)
pocket7.Profile = sketch10
pocket7.Length = 10
doc.recompute()

fillet2 = doc.addObject("PartDesign::Fillet", "Fillet001")
body.addObject(fillet2)
fillet2.Base = (pocket7, edges_at(pocket7, [
    (8, 9.815, 5.75),
    (4.5, 11.836, 5.75),
    (4.5, 15.877, 5.75),
    (8, 17.898, 5.75),
    (11.5, 15.877, 5.75),
    (11.5, 11.836, 5.75),
    (4.5, -11.836, 5.75),
    (8, -9.815, 5.75),
    (11.5, -11.836, 5.75),
    (11.5, -15.877, 5.75),
    (8, -17.898, 5.75),
    (4.5, -15.877, 5.75),
    (-12.5, 2.021, 5.75),
    (-12.5, -2.021, 5.75),
    (-16, -4.041, 5.75),
    (-19.5, -2.021, 5.75),
    (-19.5, 2.021, 5.75),
    (-16, 4.041, 5.75),
]))
fillet2.Radius = 1
doc.recompute()

fillet3 = doc.addObject("PartDesign::Fillet", "Fillet002")
body.addObject(fillet3)
fillet3.Base = (fillet2, edges_at(fillet2, [
    (100, 5, 4),
    (100, -5, 4),
    (90, -5, 4),
    (90, 5, 4),
]))
fillet3.Radius = 3

doc.recompute()
